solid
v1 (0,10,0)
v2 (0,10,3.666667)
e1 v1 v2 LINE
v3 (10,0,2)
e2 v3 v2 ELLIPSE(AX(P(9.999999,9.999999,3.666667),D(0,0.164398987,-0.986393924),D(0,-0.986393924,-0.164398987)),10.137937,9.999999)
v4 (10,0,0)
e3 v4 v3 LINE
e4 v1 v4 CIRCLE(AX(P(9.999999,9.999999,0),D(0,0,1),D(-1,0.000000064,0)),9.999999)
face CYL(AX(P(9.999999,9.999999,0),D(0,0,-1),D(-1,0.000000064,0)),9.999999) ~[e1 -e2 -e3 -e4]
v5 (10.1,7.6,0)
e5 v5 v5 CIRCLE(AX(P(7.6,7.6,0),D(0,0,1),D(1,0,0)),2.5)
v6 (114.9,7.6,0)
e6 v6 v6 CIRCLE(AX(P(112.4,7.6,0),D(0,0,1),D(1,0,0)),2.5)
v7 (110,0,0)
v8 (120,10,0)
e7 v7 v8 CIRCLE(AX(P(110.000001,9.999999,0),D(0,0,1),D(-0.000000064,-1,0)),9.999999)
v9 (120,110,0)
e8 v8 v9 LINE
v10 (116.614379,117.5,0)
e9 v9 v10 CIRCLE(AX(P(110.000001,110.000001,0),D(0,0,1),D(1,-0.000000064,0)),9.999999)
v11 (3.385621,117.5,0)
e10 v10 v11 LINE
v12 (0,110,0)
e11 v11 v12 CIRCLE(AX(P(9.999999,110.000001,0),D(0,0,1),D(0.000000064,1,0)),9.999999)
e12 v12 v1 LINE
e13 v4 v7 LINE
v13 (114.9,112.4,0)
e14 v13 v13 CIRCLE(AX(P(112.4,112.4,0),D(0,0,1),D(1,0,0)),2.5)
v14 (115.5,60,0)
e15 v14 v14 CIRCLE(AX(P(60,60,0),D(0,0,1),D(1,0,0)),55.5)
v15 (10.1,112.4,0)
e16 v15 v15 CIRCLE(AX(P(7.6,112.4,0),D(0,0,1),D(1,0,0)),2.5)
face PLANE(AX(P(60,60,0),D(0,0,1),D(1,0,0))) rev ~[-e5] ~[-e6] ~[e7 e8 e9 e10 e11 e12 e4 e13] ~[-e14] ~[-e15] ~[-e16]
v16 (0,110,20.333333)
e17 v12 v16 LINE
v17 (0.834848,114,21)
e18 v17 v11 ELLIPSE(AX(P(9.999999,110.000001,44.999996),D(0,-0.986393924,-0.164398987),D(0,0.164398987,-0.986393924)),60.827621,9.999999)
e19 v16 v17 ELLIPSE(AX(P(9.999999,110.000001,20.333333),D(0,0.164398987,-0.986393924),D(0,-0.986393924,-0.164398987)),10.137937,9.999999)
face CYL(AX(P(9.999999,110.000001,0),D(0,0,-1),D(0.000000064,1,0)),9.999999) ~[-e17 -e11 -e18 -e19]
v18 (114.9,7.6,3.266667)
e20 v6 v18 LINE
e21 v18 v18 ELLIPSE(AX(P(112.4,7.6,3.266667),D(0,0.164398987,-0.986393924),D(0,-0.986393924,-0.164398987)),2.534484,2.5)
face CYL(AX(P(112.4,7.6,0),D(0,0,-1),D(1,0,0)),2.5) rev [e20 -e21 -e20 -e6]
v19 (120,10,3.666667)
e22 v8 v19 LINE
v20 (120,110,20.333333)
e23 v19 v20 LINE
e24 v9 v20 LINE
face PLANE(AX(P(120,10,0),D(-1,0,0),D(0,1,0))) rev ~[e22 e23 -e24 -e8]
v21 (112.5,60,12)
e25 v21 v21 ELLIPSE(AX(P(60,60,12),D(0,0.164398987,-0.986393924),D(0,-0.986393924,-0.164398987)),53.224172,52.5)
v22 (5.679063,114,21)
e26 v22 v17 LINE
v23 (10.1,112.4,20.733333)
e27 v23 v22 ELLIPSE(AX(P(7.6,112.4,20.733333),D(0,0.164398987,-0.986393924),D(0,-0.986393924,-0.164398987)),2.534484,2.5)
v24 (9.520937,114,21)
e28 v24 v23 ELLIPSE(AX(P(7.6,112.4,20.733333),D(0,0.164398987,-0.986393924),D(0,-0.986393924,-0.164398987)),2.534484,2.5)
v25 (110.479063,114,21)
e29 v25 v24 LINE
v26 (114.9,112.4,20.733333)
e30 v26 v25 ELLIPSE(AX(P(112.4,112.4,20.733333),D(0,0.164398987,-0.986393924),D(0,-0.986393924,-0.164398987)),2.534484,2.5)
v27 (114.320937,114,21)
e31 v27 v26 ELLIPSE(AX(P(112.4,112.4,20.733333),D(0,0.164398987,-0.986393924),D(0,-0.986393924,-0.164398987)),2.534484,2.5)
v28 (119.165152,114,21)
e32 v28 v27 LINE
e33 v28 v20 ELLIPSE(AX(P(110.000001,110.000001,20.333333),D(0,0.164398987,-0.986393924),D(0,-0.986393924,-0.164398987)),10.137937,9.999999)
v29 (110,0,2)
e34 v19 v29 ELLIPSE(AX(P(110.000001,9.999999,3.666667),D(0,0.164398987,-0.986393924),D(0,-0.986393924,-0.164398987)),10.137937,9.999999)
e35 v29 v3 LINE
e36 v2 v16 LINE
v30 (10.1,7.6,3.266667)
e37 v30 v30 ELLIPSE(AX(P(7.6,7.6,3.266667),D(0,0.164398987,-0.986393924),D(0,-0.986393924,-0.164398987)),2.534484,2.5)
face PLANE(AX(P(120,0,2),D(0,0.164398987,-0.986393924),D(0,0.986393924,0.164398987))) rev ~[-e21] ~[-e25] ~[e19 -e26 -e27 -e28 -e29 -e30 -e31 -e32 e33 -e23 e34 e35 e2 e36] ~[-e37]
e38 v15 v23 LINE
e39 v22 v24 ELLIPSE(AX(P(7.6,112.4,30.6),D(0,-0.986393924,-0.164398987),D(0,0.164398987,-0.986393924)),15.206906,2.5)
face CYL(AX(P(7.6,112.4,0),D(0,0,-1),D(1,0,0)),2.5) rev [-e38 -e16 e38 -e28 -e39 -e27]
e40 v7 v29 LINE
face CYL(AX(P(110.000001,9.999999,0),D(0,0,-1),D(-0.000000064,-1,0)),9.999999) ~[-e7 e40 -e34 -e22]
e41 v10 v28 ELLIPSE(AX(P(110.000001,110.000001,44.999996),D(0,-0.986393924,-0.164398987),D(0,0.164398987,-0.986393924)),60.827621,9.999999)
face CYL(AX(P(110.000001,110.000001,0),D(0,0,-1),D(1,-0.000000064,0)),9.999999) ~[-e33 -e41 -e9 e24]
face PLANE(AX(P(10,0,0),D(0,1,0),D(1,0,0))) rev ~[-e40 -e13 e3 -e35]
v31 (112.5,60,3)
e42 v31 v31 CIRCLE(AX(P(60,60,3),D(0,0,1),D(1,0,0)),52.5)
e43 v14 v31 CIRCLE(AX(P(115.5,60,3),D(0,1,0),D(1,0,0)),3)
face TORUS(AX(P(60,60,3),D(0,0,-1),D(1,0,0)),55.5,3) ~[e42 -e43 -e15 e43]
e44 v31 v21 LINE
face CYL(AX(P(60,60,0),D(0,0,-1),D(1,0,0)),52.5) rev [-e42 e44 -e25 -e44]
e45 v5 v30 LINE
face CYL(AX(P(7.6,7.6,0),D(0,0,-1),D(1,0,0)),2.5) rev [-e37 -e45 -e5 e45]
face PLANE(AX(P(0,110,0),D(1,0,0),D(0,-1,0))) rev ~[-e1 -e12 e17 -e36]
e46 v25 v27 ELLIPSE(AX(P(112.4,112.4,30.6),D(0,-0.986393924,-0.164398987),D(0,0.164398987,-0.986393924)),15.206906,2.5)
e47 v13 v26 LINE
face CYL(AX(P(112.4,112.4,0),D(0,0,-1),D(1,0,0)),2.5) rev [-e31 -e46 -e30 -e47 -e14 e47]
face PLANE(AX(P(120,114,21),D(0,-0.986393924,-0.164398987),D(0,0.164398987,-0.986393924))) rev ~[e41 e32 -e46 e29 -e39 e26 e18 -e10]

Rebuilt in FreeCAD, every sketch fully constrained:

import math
import FreeCAD as App
import Part
import Sketcher


def edges_at(feature, points):
    """Names of the edges that pass closest to the given points."""
    edges = feature.Shape.Edges
    near = lambda p: min(range(len(edges)), key=lambda i: edges[i].distToShape(Part.Vertex(*p))[0])
    return sorted({f"Edge{near(p) + 1}" for p in points})

doc = App.newDocument("Part")
params = doc.addObject("Spreadsheet::Sheet", "Params")
for row, (alias, value) in enumerate([
    ("sketch1_diameter", "5 mm"),
    ("sketch1_diameter2", "105 mm"),
    ("sketch1_radius", "9.999999 mm"),
    ("sketch1_width", "100 mm"),
    ("pad1_length", "30 mm"),
    ("sketch2_width", "125 mm"),
    ("sketch2_height", "43 mm"),
    ("sketch2_height2", "45 mm"),
    ("sketch2_width2", "7.5 mm"),
    ("fillet_radius", "3 mm"),
], start=1):
    params.set(f"A{row}", alias)
    params.set(f"B{row}", "=" + value)
    params.setAlias(f"B{row}", alias)

body = doc.addObject("PartDesign::Body", "Body")

# Sketch on XY plane
sketch1 = body.newObject("Sketcher::SketchObject", "Sketch")
sketch1.AttachmentSupport = (doc.getObject("XY_Plane"), [""])
sketch1.MapMode = "FlatFace"
sketch1.addGeometry(Part.ArcOfCircle(Part.Circle(App.Vector(10, 10, 0), App.Vector(0, 0, 1), 10), math.radians(180), math.radians(270)), False)
sketch1.addGeometry(Part.LineSegment(App.Vector(10, 0, 0), App.Vector(110, 0, 0)), False)
sketch1.addGeometry(Part.ArcOfCircle(Part.Circle(App.Vector(110, 10, 0), App.Vector(0, 0, 1), 10), math.radians(-90), math.radians(0)), False)
sketch1.addGeometry(Part.LineSegment(App.Vector(120, 10, 0), App.Vector(120, 110, 0)), False)
sketch1.addGeometry(Part.ArcOfCircle(Part.Circle(App.Vector(110, 110, 0), App.Vector(0, 0, 1), 10), math.radians(0), math.radians(90)), False)
sketch1.addGeometry(Part.LineSegment(App.Vector(110, 120, 0), App.Vector(10, 120, 0)), False)
sketch1.addGeometry(Part.ArcOfCircle(Part.Circle(App.Vector(10, 110, 0), App.Vector(0, 0, 1), 10), math.radians(90), math.radians(180)), False)
sketch1.addGeometry(Part.LineSegment(App.Vector(0, 110, 0), App.Vector(0, 10, 0)), False)
sketch1.addGeometry(Part.Circle(App.Vector(7.6, 7.6, 0), App.Vector(0, 0, 1), 2.5), False)
sketch1.addGeometry(Part.Circle(App.Vector(60, 60, 0), App.Vector(0, 0, 1), 52.5), False)
sketch1.addGeometry(Part.Circle(App.Vector(112.4, 7.6, 0), App.Vector(0, 0, 1), 2.5), False)
sketch1.addGeometry(Part.Circle(App.Vector(7.6, 112.4, 0), App.Vector(0, 0, 1), 2.5), False)
sketch1.addGeometry(Part.Circle(App.Vector(112.4, 112.4, 0), App.Vector(0, 0, 1), 2.5), False)
sketch1.addConstraint(Sketcher.Constraint("Tangent", 0, 2, 1, 1))
sketch1.addConstraint(Sketcher.Constraint("Tangent", 1, 2, 2, 1))
sketch1.addConstraint(Sketcher.Constraint("Tangent", 2, 2, 3, 1))
sketch1.addConstraint(Sketcher.Constraint("Tangent", 3, 2, 4, 1))
sketch1.addConstraint(Sketcher.Constraint("Tangent", 4, 2, 5, 1))
sketch1.addConstraint(Sketcher.Constraint("Tangent", 5, 2, 6, 1))
sketch1.addConstraint(Sketcher.Constraint("Tangent", 6, 2, 7, 1))
sketch1.addConstraint(Sketcher.Constraint("Tangent", 7, 2, 0, 1))
sketch1.addConstraint(Sketcher.Constraint("Horizontal", 1))
sketch1.addConstraint(Sketcher.Constraint("Vertical", 3))
sketch1.addConstraint(Sketcher.Constraint("Horizontal", 5))
sketch1.addConstraint(Sketcher.Constraint("Vertical", 7))
sketch1.addConstraint(Sketcher.Constraint("Equal", 0, 2))
sketch1.addConstraint(Sketcher.Constraint("Equal", 2, 4))
sketch1.addConstraint(Sketcher.Constraint("Equal", 4, 6))
sketch1.addConstraint(Sketcher.Constraint("Equal", 8, 10))
sketch1.addConstraint(Sketcher.Constraint("Equal", 10, 11))
sketch1.addConstraint(Sketcher.Constraint("Equal", 11, 12))
sketch1.addConstraint(Sketcher.Constraint("PointOnObject", 0, 2, -1))
sketch1.addConstraint(Sketcher.Constraint("PointOnObject", 6, 2, -2))
sketch1.addConstraint(Sketcher.Constraint("Horizontal", 8, 3, 10, 3))
sketch1.addConstraint(Sketcher.Constraint("Horizontal", 11, 3, 12, 3))
sketch1.addConstraint(Sketcher.Constraint("Vertical", 8, 3, 11, 3))
sketch1.addConstraint(Sketcher.Constraint("Vertical", 10, 3, 12, 3))
sketch1.addConstraint(Sketcher.Constraint("Equal", 5, 3))
sketch1.addConstraint(Sketcher.Constraint("Diameter", 8, 5.0))
sketch1.addConstraint(Sketcher.Constraint("Diameter", 9, 105.0))
sketch1.addConstraint(Sketcher.Constraint("Radius", 0, 9.999999))
sketch1.addConstraint(Sketcher.Constraint("DistanceX", 1, 1, 1, 2, 100.0))
sketch1.addConstraint(Sketcher.Constraint("DistanceX", -1, 1, 9, 3, 60.0))
sketch1.addConstraint(Sketcher.Constraint("DistanceY", -1, 1, 9, 3, 60.0))
sketch1.addConstraint(Sketcher.Constraint("DistanceX", -1, 1, 8, 3, 7.6))
sketch1.addConstraint(Sketcher.Constraint("DistanceY", -1, 1, 8, 3, 7.6))
sketch1.addConstraint(Sketcher.Constraint("DistanceX", -1, 1, 10, 3, 112.4))
sketch1.addConstraint(Sketcher.Constraint("DistanceY", -1, 1, 11, 3, 112.4))
sketch1.setExpression("Constraints[25]", "Params.sketch1_diameter")
sketch1.setExpression("Constraints[26]", "Params.sketch1_diameter2")
sketch1.setExpression("Constraints[27]", "Params.sketch1_radius")
sketch1.setExpression("Constraints[28]", "Params.sketch1_width")
pad1 = body.newObject("PartDesign::Pad", "Pad")
pad1.Profile = sketch1
pad1.setExpression("Length", "Params.pad1_length")

# Sketch on YZ plane
sketch2 = body.newObject("Sketcher::SketchObject", "Sketch001")
sketch2.AttachmentSupport = (doc.getObject("YZ_Plane"), [""])
sketch2.MapMode = "FlatFace"
sketch2.AttachmentOffset = App.Placement(App.Vector(0, 0, 120), App.Rotation())
sketch2.addGeometry(Part.LineSegment(App.Vector(0, 45, 0), App.Vector(0, 2, 0)), False)
sketch2.addGeometry(Part.LineSegment(App.Vector(0, 2, 0), App.Vector(114, 21, 0)), False)
sketch2.addGeometry(Part.LineSegment(App.Vector(114, 21, 0), App.Vector(118, 0, 0)), False)
sketch2.addGeometry(Part.LineSegment(App.Vector(118, 0, 0), App.Vector(125, 0, 0)), False)
sketch2.addGeometry(Part.LineSegment(App.Vector(125, 0, 0), App.Vector(125, 45, 0)), False)
sketch2.addGeometry(Part.LineSegment(App.Vector(125, 45, 0), App.Vector(0, 45, 0)), False)
sketch2.addConstraint(Sketcher.Constraint("Coincident", 0, 2, 1, 1))
sketch2.addConstraint(Sketcher.Constraint("Coincident", 1, 2, 2, 1))
sketch2.addConstraint(Sketcher.Constraint("Coincident", 2, 2, 3, 1))
sketch2.addConstraint(Sketcher.Constraint("Coincident", 3, 2, 4, 1))
sketch2.addConstraint(Sketcher.Constraint("Coincident", 4, 2, 5, 1))
sketch2.addConstraint(Sketcher.Constraint("Coincident", 5, 2, 0, 1))
sketch2.addConstraint(Sketcher.Constraint("Vertical", 0))
sketch2.addConstraint(Sketcher.Constraint("Horizontal", 3))
sketch2.addConstraint(Sketcher.Constraint("Vertical", 4))
sketch2.addConstraint(Sketcher.Constraint("Horizontal", 5))
sketch2.addConstraint(Sketcher.Constraint("PointOnObject", 0, 2, -2))
sketch2.addConstraint(Sketcher.Constraint("PointOnObject", 2, 2, -1))
sketch2.addConstraint(Sketcher.Constraint("Perpendicular", 1, 2))
sketch2.addConstraint(Sketcher.Constraint("DistanceX", 5, 2, 5, 1, 125.0))
sketch2.addConstraint(Sketcher.Constraint("DistanceY", 0, 2, 0, 1, 43.0))
sketch2.addConstraint(Sketcher.Constraint("DistanceY", 4, 1, 4, 2, 45.0))
sketch2.addConstraint(Sketcher.Constraint("DistanceX", 3, 1, 3, 2, 7.5))
sketch2.addConstraint(Sketcher.Constraint("DistanceX", -1, 1, 1, 2, 114.0))
sketch2.setExpression("Constraints[13]", "Params.sketch2_width")
sketch2.setExpression("Constraints[14]", "Params.sketch2_height")
sketch2.setExpression("Constraints[15]", "Params.sketch2_height2")
sketch2.setExpression("Constraints[16]", "Params.sketch2_width2")
pocket1 = body.newObject("PartDesign::Pocket", "Pocket")
pocket1.Profile = sketch2
pocket1.Type = "ThroughAll"
doc.recompute()

fillet = body.newObject("PartDesign::Fillet", "Fillet")
fillet.Base = (pocket1, edges_at(pocket1, [(7.5, 60, 0)]))
fillet.setExpression("Radius", "Params.fillet_radius")

doc.recompute()
